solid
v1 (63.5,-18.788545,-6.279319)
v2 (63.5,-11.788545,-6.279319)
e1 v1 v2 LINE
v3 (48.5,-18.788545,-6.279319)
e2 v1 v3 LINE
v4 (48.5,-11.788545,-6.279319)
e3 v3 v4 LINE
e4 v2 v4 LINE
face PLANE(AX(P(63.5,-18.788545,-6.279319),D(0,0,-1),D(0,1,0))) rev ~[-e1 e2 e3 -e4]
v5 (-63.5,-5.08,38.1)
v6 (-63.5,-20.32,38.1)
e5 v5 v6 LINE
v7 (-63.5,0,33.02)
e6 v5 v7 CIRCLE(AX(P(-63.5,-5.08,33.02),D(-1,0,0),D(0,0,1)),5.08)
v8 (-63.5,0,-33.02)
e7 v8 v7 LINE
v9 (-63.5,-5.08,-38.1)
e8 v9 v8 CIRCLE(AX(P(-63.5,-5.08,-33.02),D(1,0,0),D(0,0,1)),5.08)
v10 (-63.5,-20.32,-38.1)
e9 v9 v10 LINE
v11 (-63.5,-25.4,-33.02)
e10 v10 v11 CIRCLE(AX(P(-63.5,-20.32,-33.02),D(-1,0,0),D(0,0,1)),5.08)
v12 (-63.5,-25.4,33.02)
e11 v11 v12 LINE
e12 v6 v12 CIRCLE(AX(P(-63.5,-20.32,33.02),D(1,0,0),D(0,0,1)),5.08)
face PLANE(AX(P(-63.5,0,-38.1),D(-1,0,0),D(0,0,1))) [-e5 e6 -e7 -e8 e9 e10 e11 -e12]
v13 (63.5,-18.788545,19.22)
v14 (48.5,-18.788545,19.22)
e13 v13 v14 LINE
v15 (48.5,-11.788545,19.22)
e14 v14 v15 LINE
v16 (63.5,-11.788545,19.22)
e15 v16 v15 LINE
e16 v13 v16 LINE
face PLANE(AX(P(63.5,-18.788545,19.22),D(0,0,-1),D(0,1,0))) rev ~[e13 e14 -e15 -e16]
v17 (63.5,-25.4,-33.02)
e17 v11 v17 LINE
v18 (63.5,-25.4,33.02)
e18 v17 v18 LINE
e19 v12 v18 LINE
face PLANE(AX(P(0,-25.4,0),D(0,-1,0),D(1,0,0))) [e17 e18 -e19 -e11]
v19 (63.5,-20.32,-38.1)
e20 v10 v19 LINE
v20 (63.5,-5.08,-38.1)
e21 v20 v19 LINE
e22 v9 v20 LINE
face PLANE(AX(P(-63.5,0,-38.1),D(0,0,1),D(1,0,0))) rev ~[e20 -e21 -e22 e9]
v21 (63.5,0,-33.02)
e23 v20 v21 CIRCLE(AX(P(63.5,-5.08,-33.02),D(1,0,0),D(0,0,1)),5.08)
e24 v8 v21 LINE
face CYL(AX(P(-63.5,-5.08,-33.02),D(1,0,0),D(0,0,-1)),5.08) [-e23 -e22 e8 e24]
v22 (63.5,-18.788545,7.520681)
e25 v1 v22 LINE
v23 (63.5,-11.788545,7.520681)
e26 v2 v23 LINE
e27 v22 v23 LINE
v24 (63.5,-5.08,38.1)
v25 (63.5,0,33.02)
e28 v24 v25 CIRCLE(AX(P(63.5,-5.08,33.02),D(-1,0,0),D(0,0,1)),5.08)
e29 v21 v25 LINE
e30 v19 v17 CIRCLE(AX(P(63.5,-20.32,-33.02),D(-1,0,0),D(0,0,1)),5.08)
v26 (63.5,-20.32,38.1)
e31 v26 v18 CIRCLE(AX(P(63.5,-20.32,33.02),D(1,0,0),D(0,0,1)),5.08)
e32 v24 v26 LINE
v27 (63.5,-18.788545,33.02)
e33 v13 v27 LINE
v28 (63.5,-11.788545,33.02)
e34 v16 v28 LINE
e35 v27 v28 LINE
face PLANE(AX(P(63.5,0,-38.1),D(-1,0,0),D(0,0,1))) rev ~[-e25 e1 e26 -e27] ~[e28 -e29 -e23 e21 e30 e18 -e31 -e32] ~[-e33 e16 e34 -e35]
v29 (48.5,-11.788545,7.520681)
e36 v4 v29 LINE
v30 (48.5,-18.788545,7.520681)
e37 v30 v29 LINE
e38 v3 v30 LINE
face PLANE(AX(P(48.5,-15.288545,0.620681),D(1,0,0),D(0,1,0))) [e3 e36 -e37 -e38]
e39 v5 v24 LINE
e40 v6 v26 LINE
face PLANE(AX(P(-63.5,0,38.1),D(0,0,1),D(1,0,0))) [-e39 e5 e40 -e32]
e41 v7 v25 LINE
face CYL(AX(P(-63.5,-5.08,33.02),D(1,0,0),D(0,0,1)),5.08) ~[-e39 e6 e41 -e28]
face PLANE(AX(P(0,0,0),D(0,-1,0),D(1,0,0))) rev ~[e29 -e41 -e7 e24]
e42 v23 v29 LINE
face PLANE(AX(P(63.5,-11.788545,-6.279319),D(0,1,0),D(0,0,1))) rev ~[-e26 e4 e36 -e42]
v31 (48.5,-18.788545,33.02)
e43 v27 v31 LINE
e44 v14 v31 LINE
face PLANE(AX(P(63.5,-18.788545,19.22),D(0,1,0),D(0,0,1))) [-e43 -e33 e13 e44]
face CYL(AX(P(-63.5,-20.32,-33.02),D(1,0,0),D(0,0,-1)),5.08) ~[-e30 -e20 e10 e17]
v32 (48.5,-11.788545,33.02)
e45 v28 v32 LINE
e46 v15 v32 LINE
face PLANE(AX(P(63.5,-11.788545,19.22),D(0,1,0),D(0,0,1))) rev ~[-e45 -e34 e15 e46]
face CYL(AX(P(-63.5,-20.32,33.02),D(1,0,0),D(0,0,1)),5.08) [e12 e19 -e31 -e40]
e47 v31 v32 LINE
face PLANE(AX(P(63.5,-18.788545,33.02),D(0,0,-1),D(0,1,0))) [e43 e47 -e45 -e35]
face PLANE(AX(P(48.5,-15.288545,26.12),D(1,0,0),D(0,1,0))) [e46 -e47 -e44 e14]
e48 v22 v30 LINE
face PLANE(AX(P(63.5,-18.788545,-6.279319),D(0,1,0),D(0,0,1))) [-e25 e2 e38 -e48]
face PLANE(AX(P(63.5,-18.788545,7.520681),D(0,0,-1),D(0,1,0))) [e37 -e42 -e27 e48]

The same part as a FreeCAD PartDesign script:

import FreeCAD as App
import Part
import Sketcher

V = App.Vector
Q = App.Units.Quantity


def edges_at(feature, points):
    """Names of the edges that pass closest to the given points."""
    edges = feature.Shape.Edges
    near = lambda p: min(range(len(edges)), key=lambda i: edges[i].distToShape(Part.Vertex(*p))[0])
    return sorted({f"Edge{near(p) + 1}" for p in points})

doc = App.newDocument("Part")
params = doc.addObject("Spreadsheet::Sheet", "Params")
for row, (alias, value) in enumerate([
    ("sketch1_width", "5 in"),
    ("sketch1_height", "3 in"),
    ("pad1_length", "1 in"),
    ("fillet_radius", "0.2 in"),
    ("pocket1_length", "15 mm"),
    ("pocket2_length", "15 mm"),
], start=1):
    params.set(f"A{row}", alias)
    params.set(f"B{row}", "=" + value)
    params.setAlias(f"B{row}", alias)

body = doc.addObject("PartDesign::Body", "Body")

# Sketch on XZ plane
sketch1 = doc.addObject("Sketcher::SketchObject", "Sketch")
body.addObject(sketch1)
sketch1.AttachmentSupport = (doc.XZ_Plane, [""])
sketch1.MapMode = "FlatFace"
sketch1.addGeometry(Part.LineSegment(V(-64, 38, 0), V(-64, -38, 0)), False)
sketch1.addGeometry(Part.LineSegment(V(-64, -38, 0), V(64, -38, 0)), False)
sketch1.addGeometry(Part.LineSegment(V(64, -38, 0), V(64, 38, 0)), False)
sketch1.addGeometry(Part.LineSegment(V(64, 38, 0), V(-64, 38, 0)), False)
sketch1.addConstraint(Sketcher.Constraint("Coincident", 0, 2, 1, 1))
sketch1.addConstraint(Sketcher.Constraint("Coincident", 1, 2, 2, 1))
sketch1.addConstraint(Sketcher.Constraint("Coincident", 2, 2, 3, 1))
sketch1.addConstraint(Sketcher.Constraint("Coincident", 3, 2, 0, 1))
sketch1.addConstraint(Sketcher.Constraint("Vertical", 0))
sketch1.addConstraint(Sketcher.Constraint("Horizontal", 1))
sketch1.addConstraint(Sketcher.Constraint("Vertical", 2))
sketch1.addConstraint(Sketcher.Constraint("Horizontal", 3))
sketch1.addConstraint(Sketcher.Constraint("Symmetric", 0, 2, 2, 2, -1, 1))
sketch1.addConstraint(Sketcher.Constraint("DistanceX", 1, 1, 1, 2, Q("5 in")))
sketch1.addConstraint(Sketcher.Constraint("DistanceY", 0, 2, 0, 1, Q("3 in")))
sketch1.setExpression("Constraints[9]", "Params.sketch1_width")
sketch1.setExpression("Constraints[10]", "Params.sketch1_height")
pad1 = doc.addObject("PartDesign::Pad", "Pad")
body.addObject(pad1)
pad1.Profile = sketch1
pad1.setExpression("Length", "Params.pad1_length")
doc.recompute()

fillet = doc.addObject("PartDesign::Fillet", "Fillet")
body.addObject(fillet)
fillet.Base = (pad1, edges_at(pad1, [
    (0, -25.4, 38.1),
    (0, 0, 38.1),
    (0, -25.4, -38.1),
    (0, 0, -38.1),
]))
fillet.setExpression("Radius", "Params.fillet_radius")

# Sketch on YZ plane
sketch2 = doc.addObject("Sketcher::SketchObject", "Sketch001")
body.addObject(sketch2)
sketch2.AttachmentSupport = (doc.YZ_Plane, [""])
sketch2.MapMode = "FlatFace"
sketch2.AttachmentOffset = App.Placement(V(0, 0, 2.5 * 25.4), App.Rotation())
sketch2.addGeometry(Part.LineSegment(V(-19, 33, 0), V(-19, 19, 0)), False)
sketch2.addGeometry(Part.LineSegment(V(-19, 19, 0), V(-12, 19, 0)), False)
sketch2.addGeometry(Part.LineSegment(V(-12, 19, 0), V(-12, 33, 0)), False)
sketch2.addGeometry(Part.LineSegment(V(-12, 33, 0), V(-19, 33, 0)), False)
sketch2.addConstraint(Sketcher.Constraint("Coincident", 0, 2, 1, 1))
sketch2.addConstraint(Sketcher.Constraint("Coincident", 1, 2, 2, 1))
sketch2.addConstraint(Sketcher.Constraint("Coincident", 2, 2, 3, 1))
sketch2.addConstraint(Sketcher.Constraint("Coincident", 3, 2, 0, 1))
sketch2.addConstraint(Sketcher.Constraint("Vertical", 0))
sketch2.addConstraint(Sketcher.Constraint("Horizontal", 1))
sketch2.addConstraint(Sketcher.Constraint("Vertical", 2))
sketch2.addConstraint(Sketcher.Constraint("Horizontal", 3))
sketch2.addConstraint(Sketcher.Constraint("DistanceY", -1, 1, 2, 2, Q("1.3 in")))
sketch2.addConstraint(Sketcher.Constraint("DistanceX", 1, 1, 1, 2, 7.0))
sketch2.addConstraint(Sketcher.Constraint("DistanceY", 0, 2, 0, 1, 13.8))
sketch2.addConstraint(Sketcher.Constraint("DistanceX", 0, 2, -1, 1, 18.788545))
pocket1 = doc.addObject("PartDesign::Pocket", "Pocket")
body.addObject(pocket1)
pocket1.Profile = sketch2
pocket1.setExpression("Length", "Params.pocket1_length")

# Sketch on YZ plane
sketch3 = doc.addObject("Sketcher::SketchObject", "Sketch002")
body.addObject(sketch3)
sketch3.AttachmentSupport = (doc.YZ_Plane, [""])
sketch3.MapMode = "FlatFace"
sketch3.AttachmentOffset = App.Placement(V(0, 0, 2.5 * 25.4), App.Rotation())
sketch3.addGeometry(Part.LineSegment(V(-19, 8, 0), V(-19, -6, 0)), False)
sketch3.addGeometry(Part.LineSegment(V(-19, -6, 0), V(-12, -6, 0)), False)
sketch3.addGeometry(Part.LineSegment(V(-12, -6, 0), V(-12, 8, 0)), False)
sketch3.addGeometry(Part.LineSegment(V(-12, 8, 0), V(-19, 8, 0)), False)
sketch3.addConstraint(Sketcher.Constraint("Coincident", 0, 2, 1, 1))
sketch3.addConstraint(Sketcher.Constraint("Coincident", 1, 2, 2, 1))
sketch3.addConstraint(Sketcher.Constraint("Coincident", 2, 2, 3, 1))
sketch3.addConstraint(Sketcher.Constraint("Coincident", 3, 2, 0, 1))
sketch3.addConstraint(Sketcher.Constraint("Vertical", 0))
sketch3.addConstraint(Sketcher.Constraint("Horizontal", 1))
sketch3.addConstraint(Sketcher.Constraint("Vertical", 2))
sketch3.addConstraint(Sketcher.Constraint("Horizontal", 3))
sketch3.addConstraint(Sketcher.Constraint("DistanceX", 1, 1, 1, 2, 7.0))
sketch3.addConstraint(Sketcher.Constraint("DistanceY", 0, 2, 0, 1, 13.8))
sketch3.addConstraint(Sketcher.Constraint("DistanceY", 0, 2, -1, 1, 6.279319))
sketch3.addConstraint(Sketcher.Constraint("DistanceX", 0, 2, -1, 1, 18.788545))
pocket2 = doc.addObject("PartDesign::Pocket", "Pocket001")
body.addObject(pocket2)
pocket2.Profile = sketch3
pocket2.setExpression("Length", "Params.pocket2_length")

doc.recompute()
